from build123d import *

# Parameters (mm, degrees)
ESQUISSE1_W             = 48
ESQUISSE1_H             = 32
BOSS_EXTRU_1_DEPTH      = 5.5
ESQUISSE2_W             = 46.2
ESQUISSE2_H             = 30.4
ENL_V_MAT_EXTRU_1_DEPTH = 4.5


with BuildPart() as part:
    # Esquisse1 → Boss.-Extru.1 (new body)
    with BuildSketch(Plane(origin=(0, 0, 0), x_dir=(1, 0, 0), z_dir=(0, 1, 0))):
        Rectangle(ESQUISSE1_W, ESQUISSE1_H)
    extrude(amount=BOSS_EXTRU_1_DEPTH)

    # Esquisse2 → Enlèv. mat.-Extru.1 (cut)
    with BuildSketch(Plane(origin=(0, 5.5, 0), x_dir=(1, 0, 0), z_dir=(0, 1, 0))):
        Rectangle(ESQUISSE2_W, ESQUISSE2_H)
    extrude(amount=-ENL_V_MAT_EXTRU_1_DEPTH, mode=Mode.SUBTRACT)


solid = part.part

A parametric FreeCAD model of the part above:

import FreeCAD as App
import Part
import Sketcher
from FreeCAD import Vector

doc = App.newDocument("Part")
body = doc.addObject("PartDesign::Body", "Body")

# Sketch on XZ plane
sketch1 = body.newObject("Sketcher::SketchObject", "Sketch")
sketch1.AttachmentSupport = (doc.getObject("XZ_Plane"), [""])
sketch1.MapMode = "FlatFace"
sketch1.addGeometry(Part.LineSegment(Vector(-24, -16, 0), Vector(-24, 16, 0)), False)
sketch1.addGeometry(Part.LineSegment(Vector(-24, 16, 0), Vector(24, 16, 0)), False)
sketch1.addGeometry(Part.LineSegment(Vector(24, 16, 0), Vector(24, -16, 0)), False)
sketch1.addGeometry(Part.LineSegment(Vector(24, -16, 0), Vector(-24, -16, 0)), False)
sketch1.addConstraint(Sketcher.Constraint("Coincident", 0, 2, 1, 1))
sketch1.addConstraint(Sketcher.Constraint("Coincident", 1, 2, 2, 1))
sketch1.addConstraint(Sketcher.Constraint("Coincident", 2, 2, 3, 1))
sketch1.addConstraint(Sketcher.Constraint("Coincident", 3, 2, 0, 1))
sketch1.addConstraint(Sketcher.Constraint("Vertical", 0))
sketch1.addConstraint(Sketcher.Constraint("Horizontal", 1))
sketch1.addConstraint(Sketcher.Constraint("Vertical", 2))
sketch1.addConstraint(Sketcher.Constraint("Horizontal", 3))
sketch1.addConstraint(Sketcher.Constraint("Symmetric", 0, 2, 2, 2, -1, 1))
sketch1.addConstraint(Sketcher.Constraint("DistanceX", 1, 1, 1, 2, 48.0))
sketch1.addConstraint(Sketcher.Constraint("DistanceY", 0, 1, 0, 2, 32.0))
pad1 = body.newObject("PartDesign::Pad", "Pad")
pad1.Profile = sketch1
pad1.Length = 5.5
pad1.Reversed = True

# Sketch on XZ plane
sketch2 = body.newObject("Sketcher::SketchObject", "Sketch001")
sketch2.AttachmentSupport = (doc.getObject("XZ_Plane"), [""])
sketch2.MapMode = "FlatFace"
sketch2.AttachmentOffset = App.Placement(Vector(0, 0, -5.5), App.Rotation())
sketch2.addGeometry(Part.LineSegment(Vector(-23, -15, 0), Vector(-23, 15, 0)), False)
sketch2.addGeometry(Part.LineSegment(Vector(-23, 15, 0), Vector(23, 15, 0)), False)
sketch2.addGeometry(Part.LineSegment(Vector(23, 15, 0), Vector(23, -15, 0)), False)
sketch2.addGeometry(Part.LineSegment(Vector(23, -15, 0), Vector(-23, -15, 0)), False)
sketch2.addConstraint(Sketcher.Constraint("Coincident", 0, 2, 1, 1))
sketch2.addConstraint(Sketcher.Constraint("Coincident", 1, 2, 2, 1))
sketch2.addConstraint(Sketcher.Constraint("Coincident", 2, 2, 3, 1))
sketch2.addConstraint(Sketcher.Constraint("Coincident", 3, 2, 0, 1))
sketch2.addConstraint(Sketcher.Constraint("Vertical", 0))
sketch2.addConstraint(Sketcher.Constraint("Horizontal", 1))
sketch2.addConstraint(Sketcher.Constraint("Vertical", 2))
sketch2.addConstraint(Sketcher.Constraint("Horizontal", 3))
sketch2.addConstraint(Sketcher.Constraint("Symmetric", 0, 2, 2, 2, -1, 1))
sketch2.addConstraint(Sketcher.Constraint("DistanceX", 1, 1, 1, 2, 46.2))
sketch2.addConstraint(Sketcher.Constraint("DistanceY", 0, 1, 0, 2, 30.4))
pocket1 = body.newObject("PartDesign::Pocket", "Pocket")
pocket1.Profile = sketch2
pocket1.Length = 4.5
pocket1.Reversed = True

doc.recompute()
